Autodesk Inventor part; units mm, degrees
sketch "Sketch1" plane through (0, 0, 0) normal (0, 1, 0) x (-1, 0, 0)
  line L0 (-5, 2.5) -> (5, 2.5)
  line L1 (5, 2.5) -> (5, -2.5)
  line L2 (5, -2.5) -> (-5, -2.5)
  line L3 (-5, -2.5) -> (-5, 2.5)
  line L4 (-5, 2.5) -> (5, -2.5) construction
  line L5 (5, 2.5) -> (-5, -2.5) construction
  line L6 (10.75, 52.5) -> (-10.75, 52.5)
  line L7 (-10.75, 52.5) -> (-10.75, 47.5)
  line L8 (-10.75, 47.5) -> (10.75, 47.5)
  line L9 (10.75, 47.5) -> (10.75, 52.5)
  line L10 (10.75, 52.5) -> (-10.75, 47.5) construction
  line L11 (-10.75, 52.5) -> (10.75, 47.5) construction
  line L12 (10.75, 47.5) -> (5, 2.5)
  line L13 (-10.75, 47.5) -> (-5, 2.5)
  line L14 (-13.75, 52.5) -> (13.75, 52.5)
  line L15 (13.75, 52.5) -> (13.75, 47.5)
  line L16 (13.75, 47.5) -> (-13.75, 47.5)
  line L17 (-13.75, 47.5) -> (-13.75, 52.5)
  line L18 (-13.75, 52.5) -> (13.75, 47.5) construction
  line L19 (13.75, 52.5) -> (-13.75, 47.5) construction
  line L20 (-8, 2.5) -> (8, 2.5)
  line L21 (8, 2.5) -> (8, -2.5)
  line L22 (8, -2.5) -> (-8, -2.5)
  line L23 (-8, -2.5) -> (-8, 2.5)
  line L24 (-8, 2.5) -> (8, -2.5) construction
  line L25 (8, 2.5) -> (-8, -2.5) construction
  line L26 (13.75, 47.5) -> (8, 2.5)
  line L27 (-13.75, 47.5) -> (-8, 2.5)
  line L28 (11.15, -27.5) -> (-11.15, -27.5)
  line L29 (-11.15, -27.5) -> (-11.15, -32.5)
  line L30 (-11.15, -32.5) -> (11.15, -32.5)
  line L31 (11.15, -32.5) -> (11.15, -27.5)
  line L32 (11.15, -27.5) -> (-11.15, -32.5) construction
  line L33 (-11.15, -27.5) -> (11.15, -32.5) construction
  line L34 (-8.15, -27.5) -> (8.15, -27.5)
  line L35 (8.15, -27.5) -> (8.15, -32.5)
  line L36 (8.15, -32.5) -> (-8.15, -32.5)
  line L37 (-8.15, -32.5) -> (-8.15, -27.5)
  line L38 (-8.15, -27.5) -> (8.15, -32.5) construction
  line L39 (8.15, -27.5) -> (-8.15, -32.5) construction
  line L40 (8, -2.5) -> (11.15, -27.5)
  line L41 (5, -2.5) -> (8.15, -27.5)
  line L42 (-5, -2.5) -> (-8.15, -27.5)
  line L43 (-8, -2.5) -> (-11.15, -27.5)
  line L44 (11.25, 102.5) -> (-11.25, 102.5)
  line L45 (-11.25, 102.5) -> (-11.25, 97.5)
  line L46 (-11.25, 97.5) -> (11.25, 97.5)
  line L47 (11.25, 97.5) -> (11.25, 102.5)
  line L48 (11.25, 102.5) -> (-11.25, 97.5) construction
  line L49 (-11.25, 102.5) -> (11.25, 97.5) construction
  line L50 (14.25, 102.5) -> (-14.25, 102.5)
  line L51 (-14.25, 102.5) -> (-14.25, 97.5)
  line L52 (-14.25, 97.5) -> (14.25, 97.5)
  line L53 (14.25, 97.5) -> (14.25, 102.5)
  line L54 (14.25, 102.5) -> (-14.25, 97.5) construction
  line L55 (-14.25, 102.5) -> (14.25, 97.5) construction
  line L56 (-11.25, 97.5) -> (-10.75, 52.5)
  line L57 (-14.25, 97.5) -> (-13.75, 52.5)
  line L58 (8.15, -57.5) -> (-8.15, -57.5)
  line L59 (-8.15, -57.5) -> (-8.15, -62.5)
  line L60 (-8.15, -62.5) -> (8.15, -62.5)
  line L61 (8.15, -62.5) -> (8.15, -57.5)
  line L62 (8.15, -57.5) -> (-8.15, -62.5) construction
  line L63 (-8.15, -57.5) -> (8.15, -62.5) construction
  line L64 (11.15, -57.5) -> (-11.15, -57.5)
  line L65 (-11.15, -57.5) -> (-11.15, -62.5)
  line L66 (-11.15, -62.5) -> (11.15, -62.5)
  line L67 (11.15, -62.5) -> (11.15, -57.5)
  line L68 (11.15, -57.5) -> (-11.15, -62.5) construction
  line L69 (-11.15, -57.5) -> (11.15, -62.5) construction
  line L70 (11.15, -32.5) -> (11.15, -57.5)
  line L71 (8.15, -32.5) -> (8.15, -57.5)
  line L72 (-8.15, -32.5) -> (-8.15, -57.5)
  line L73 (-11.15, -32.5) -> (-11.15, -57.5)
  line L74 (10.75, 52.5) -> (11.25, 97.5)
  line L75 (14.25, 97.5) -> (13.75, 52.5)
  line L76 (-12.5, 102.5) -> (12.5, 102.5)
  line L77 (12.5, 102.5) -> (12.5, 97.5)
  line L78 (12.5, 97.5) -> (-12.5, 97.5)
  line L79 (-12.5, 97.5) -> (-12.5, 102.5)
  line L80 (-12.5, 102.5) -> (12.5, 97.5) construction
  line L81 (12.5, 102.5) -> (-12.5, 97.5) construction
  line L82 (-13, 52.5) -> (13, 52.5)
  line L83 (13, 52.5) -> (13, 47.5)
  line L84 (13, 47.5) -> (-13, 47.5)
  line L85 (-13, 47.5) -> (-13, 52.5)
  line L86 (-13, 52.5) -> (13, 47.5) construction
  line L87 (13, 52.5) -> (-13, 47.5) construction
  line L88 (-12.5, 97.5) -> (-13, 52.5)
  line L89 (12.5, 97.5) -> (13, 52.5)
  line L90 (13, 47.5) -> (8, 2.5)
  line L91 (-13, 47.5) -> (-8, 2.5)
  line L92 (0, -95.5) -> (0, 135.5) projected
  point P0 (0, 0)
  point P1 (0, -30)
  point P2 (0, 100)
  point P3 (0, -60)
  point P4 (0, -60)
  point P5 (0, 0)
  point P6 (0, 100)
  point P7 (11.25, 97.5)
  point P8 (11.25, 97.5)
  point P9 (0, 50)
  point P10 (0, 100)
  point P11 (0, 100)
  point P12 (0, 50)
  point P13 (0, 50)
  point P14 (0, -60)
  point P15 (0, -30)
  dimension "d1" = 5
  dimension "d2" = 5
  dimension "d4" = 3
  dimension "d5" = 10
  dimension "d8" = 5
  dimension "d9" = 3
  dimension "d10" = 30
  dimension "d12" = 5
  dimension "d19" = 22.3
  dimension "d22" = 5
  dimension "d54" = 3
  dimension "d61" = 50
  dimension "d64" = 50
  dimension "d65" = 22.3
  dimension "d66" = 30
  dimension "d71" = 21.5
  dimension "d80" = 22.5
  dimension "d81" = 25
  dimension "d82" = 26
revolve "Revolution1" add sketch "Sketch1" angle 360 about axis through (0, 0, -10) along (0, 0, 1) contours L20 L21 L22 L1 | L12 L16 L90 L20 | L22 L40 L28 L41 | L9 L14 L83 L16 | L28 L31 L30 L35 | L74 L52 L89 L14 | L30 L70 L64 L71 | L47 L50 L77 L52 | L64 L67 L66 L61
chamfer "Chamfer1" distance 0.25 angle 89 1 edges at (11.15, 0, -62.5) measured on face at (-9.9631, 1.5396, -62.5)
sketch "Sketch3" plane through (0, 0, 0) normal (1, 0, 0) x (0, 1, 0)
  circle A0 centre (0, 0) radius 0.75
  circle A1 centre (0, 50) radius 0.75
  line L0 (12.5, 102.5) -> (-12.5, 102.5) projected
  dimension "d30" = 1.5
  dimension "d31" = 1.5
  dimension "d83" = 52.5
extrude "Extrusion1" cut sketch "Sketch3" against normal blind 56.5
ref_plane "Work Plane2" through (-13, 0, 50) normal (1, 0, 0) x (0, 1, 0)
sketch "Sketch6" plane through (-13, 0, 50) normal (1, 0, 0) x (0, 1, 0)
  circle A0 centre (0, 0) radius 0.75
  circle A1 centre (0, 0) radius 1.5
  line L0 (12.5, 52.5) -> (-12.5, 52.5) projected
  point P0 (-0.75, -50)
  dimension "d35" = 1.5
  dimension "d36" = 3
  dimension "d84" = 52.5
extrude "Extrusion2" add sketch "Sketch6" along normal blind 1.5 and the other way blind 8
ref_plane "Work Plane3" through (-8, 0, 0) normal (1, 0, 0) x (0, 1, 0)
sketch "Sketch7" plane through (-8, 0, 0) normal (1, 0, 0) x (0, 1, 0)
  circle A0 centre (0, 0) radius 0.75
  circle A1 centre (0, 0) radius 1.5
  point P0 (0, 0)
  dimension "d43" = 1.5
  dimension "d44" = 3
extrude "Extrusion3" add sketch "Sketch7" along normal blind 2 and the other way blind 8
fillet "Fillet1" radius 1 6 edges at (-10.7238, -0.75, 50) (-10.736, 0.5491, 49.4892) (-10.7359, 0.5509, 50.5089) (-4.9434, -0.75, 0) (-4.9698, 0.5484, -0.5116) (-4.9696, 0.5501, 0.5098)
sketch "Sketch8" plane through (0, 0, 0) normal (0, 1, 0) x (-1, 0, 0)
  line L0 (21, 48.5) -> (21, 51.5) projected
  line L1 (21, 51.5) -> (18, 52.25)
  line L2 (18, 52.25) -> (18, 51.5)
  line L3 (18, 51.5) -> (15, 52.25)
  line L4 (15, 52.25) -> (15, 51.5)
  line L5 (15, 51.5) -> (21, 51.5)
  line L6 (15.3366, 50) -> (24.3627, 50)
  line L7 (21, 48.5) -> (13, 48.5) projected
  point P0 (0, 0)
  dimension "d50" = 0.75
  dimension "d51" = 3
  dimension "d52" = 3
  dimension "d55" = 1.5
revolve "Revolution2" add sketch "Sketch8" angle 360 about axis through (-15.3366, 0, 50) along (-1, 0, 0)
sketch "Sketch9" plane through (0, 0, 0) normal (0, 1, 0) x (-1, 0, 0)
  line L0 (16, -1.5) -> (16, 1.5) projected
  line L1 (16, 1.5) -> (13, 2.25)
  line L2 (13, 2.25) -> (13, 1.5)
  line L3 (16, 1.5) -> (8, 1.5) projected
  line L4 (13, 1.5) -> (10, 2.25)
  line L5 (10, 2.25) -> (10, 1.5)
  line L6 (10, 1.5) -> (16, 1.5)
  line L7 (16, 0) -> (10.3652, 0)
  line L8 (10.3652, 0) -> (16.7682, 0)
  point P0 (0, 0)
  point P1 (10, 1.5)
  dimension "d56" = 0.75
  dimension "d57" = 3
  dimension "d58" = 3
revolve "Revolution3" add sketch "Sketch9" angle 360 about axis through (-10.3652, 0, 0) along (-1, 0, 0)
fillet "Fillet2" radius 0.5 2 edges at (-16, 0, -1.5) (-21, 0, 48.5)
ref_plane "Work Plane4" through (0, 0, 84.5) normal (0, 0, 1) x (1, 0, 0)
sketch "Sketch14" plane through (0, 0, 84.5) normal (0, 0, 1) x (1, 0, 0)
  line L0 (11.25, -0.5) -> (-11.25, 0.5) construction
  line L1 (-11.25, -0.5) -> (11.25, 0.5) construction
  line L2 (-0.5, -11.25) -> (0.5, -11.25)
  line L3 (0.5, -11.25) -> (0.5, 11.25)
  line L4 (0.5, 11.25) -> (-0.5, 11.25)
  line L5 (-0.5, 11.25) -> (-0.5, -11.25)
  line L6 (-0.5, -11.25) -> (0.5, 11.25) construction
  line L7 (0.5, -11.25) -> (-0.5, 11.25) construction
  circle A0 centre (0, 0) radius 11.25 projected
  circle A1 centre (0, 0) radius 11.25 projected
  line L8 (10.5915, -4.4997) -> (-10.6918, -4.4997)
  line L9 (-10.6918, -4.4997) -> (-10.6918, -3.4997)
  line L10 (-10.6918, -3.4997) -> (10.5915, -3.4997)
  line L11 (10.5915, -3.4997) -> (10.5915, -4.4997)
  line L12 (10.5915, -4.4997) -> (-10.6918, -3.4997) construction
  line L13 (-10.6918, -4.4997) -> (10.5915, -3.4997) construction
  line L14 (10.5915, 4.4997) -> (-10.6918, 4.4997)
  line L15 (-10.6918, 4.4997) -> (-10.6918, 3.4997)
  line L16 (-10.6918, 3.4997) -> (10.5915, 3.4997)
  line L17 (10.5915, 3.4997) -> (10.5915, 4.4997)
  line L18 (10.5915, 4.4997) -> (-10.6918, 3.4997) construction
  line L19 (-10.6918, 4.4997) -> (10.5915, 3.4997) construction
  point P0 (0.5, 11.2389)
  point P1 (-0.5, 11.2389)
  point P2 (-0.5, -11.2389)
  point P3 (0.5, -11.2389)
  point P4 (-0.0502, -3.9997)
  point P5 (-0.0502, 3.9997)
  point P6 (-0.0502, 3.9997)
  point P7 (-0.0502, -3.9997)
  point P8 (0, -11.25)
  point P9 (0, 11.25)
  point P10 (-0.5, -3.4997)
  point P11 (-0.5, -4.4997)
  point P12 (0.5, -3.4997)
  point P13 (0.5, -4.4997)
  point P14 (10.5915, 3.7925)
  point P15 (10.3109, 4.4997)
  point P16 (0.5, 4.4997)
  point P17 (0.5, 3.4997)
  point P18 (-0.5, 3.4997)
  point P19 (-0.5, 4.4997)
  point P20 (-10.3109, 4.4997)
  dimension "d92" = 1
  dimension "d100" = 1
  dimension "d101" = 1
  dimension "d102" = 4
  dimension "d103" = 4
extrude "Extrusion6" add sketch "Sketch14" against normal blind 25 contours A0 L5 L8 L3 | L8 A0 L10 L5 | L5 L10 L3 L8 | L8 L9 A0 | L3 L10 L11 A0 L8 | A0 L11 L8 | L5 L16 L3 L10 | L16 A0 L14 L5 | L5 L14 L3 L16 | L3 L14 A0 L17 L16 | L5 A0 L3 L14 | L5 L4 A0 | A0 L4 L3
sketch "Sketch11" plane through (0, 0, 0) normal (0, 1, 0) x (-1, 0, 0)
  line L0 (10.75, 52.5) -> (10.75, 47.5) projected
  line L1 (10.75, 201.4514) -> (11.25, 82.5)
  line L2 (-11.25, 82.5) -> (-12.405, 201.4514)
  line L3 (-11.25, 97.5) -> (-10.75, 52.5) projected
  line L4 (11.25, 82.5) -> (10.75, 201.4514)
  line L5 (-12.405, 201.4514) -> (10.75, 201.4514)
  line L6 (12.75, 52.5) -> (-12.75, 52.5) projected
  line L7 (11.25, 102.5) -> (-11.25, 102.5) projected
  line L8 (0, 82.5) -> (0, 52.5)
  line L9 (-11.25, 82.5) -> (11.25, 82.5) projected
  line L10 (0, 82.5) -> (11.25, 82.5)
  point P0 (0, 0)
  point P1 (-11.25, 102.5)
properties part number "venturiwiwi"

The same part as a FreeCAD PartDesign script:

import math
import FreeCAD as App
import Part
import Sketcher

V = App.Vector
Q = App.Units.Quantity


def edges_at(feature, points):
    """Names of the edges that pass closest to the given points."""
    edges = feature.Shape.Edges
    near = lambda p: min(range(len(edges)), key=lambda i: edges[i].distToShape(Part.Vertex(*p))[0])
    return sorted({f"Edge{near(p) + 1}" for p in points})


def add_polygon(sketch, points):
    """Adds a closed chain of lines whose ends are joined by coincident constraints."""
    first, n = sketch.GeometryCount, len(points)
    for a, b in zip(points, points[1:] + points[:1]):
        sketch.addGeometry(Part.LineSegment(App.Vector(*a, 0), App.Vector(*b, 0)), False)
    for i in range(n):
        sketch.addConstraint(Sketcher.Constraint("Coincident", first + i, 2, first + (i + 1) % n, 1))

doc = App.newDocument("Part")
body = doc.addObject("PartDesign::Body", "Body")

sketch1 = body.newObject("Sketcher::SketchObject", "Sketch")
sketch1.AttachmentSupport = (doc.getObject("XZ_Plane"), [""])
sketch1.MapMode = "FlatFace"
add_polygon(sketch1, [(-8, -2.5), (-8, 2.5), (-13, 47.5), (-13, 52.5), (-12.5, 97.5), (-12.5, 102.5), (-11.25, 102.5), (-11.25, 97.5), (-10.75, 52.5), (-10.75, 47.5), (-5, 2.5), (-5, -2.5), (-8.15, -27.5), (-8.15, -62.5), (-11.15, -62.5), (-11.15, -27.5)])
sketch1.addConstraint([
    Sketcher.Constraint("Vertical", 0),
    Sketcher.Constraint("Vertical", 2),
    Sketcher.Constraint("Vertical", 4),
    Sketcher.Constraint("Horizontal", 5),
    Sketcher.Constraint("Vertical", 6),
    Sketcher.Constraint("Vertical", 8),
    Sketcher.Constraint("Vertical", 10),
    Sketcher.Constraint("Vertical", 12),
    Sketcher.Constraint("Horizontal", 13),
    Sketcher.Constraint("Vertical", 14),
    Sketcher.Constraint("Parallel", 11, 15),
    Sketcher.Constraint("Horizontal", 3, 2, 6, 2),
    Sketcher.Constraint("Horizontal", 2, 2, 7, 2),
    Sketcher.Constraint("Horizontal", 1, 2, 8, 2),
    Sketcher.Constraint("Horizontal", 0, 2, 9, 2),
    Sketcher.Constraint("Horizontal", 11, 2, 14, 2),
    Sketcher.Constraint("Horizontal", 10, 2, 15, 2),
    Sketcher.Constraint("Equal", 0, 2),
    Sketcher.Constraint("Equal", 2, 4),
    Sketcher.Constraint("Equal", 3, 7),
    Sketcher.Constraint("DistanceX", 13, 2, 13, 1, Q("3 mm")),
    Sketcher.Constraint("DistanceY", 0, 1, 0, 2, Q("5 mm")),
    Sketcher.Constraint("DistanceX", 9, 2, -1, 1, Q("5 mm")),
    Sketcher.Constraint("DistanceX", 1, 2, 0, 2, Q("5 mm")),
    Sketcher.Constraint("DistanceY", 0, 2, 2, 2, Q("50 mm")),
    Sketcher.Constraint("DistanceY", 1, 2, 3, 2, Q("50 mm")),
    Sketcher.Constraint("DistanceY", 11, 2, 10, 2, Q("25 mm")),
    Sketcher.Constraint("DistanceY", 12, 2, 12, 1, Q("35 mm")),
    Sketcher.Constraint("DistanceX", 5, 1, 5, 2, Q("1.25 mm")),
    Sketcher.Constraint("DistanceY", -1, 1, 0, 2, Q("2.5 mm")),
    Sketcher.Constraint("DistanceX", 3, 2, -1, 1, Q("12.5 mm")),
    Sketcher.Constraint("DistanceX", 8, 2, 11, 2, Q("2.6 mm")),
])
revolution = body.newObject("PartDesign::Revolution", "Revolution")
revolution.Profile = sketch1
revolution.ReferenceAxis = (sketch1, ["V_Axis"])
revolution.Angle = 360
doc.recompute()

chamfer = body.newObject("PartDesign::Chamfer", "Chamfer")
chamfer.Base = (revolution, edges_at(revolution, [(11.15, 0, -62.5)]))
chamfer.ChamferType = "Distance and Angle"
chamfer.Size = 0.25
chamfer.Angle = 89

sketch2 = body.newObject("Sketcher::SketchObject", "Sketch001")
sketch2.AttachmentSupport = (doc.getObject("YZ_Plane"), [""])
sketch2.MapMode = "FlatFace"
sketch2.addGeometry([
    Part.Circle(V(0, 0, 0), V(0, 0, 1), 0.75),
    Part.Circle(V(0, 50, 0), V(0, 0, 1), 0.75),
], False)
sketch2.addConstraint([
    Sketcher.Constraint("Coincident", 0, 3, -1, 1),
    Sketcher.Constraint("Equal", 0, 1),
    Sketcher.Constraint("PointOnObject", 1, 3, -2),
    Sketcher.Constraint("Diameter", 0, Q("1.5 mm")),
    Sketcher.Constraint("DistanceY", -1, 1, 1, 3, Q("50 mm")),
])
pocket1 = body.newObject("PartDesign::Pocket", "Pocket")
pocket1.Profile = sketch2
pocket1.Length = 56.5

sketch3 = body.newObject("Sketcher::SketchObject", "Sketch002")
sketch3.AttachmentSupport = (doc.getObject("YZ_Plane"), [""])
sketch3.MapMode = "FlatFace"
sketch3.AttachmentOffset = App.Placement(V(0, 0, -13), App.Rotation())
sketch3.addGeometry([
    Part.Circle(V(0, 50, 0), V(0, 0, 1), 1.5),
    Part.Circle(V(0, 50, 0), V(0, 0, 1), 0.75),
], False)
sketch3.addConstraint([
    Sketcher.Constraint("Coincident", 1, 3, 0, 3),
    Sketcher.Constraint("PointOnObject", 0, 3, -2),
    Sketcher.Constraint("Diameter", 0, Q("3 mm")),
    Sketcher.Constraint("Diameter", 1, Q("1.5 mm")),
    Sketcher.Constraint("DistanceY", -1, 1, 0, 3, Q("50 mm")),
])
pad1 = body.newObject("PartDesign::Pad", "Pad")
pad1.Profile = sketch3
pad1.Type = "TwoLengths"
pad1.Length = 1.5
pad1.Length2 = 8

sketch4 = body.newObject("Sketcher::SketchObject", "Sketch003")
sketch4.AttachmentSupport = (doc.getObject("YZ_Plane"), [""])
sketch4.MapMode = "FlatFace"
sketch4.AttachmentOffset = App.Placement(V(0, 0, -8), App.Rotation())
sketch4.addGeometry([
    Part.Circle(V(0, 0, 0), V(0, 0, 1), 1.5),
    Part.Circle(V(0, 0, 0), V(0, 0, 1), 0.75),
], False)
sketch4.addConstraint([
    Sketcher.Constraint("Coincident", 0, 3, -1, 1),
    Sketcher.Constraint("Coincident", 1, 3, -1, 1),
    Sketcher.Constraint("Diameter", 0, Q("3 mm")),
    Sketcher.Constraint("Diameter", 1, Q("1.5 mm")),
])
pad2 = body.newObject("PartDesign::Pad", "Pad001")
pad2.Profile = sketch4
pad2.Type = "TwoLengths"
pad2.Length = 2
pad2.Length2 = 8
doc.recompute()

fillet = body.newObject("PartDesign::Fillet", "Fillet")
fillet.Base = (pad2, edges_at(pad2, [
    (-10.724, -0.75, 50),
    (-10.736, 0.549, 49.489),
    (-10.736, 0.551, 50.509),
    (-4.943, -0.75, 0),
    (-4.97, 0.548, -0.512),
    (-4.97, 0.55, 0.51),
]))
fillet.Radius = 1

sketch5 = body.newObject("Sketcher::SketchObject", "Sketch004")
sketch5.AttachmentSupport = (doc.getObject("XZ_Plane"), [""])
sketch5.MapMode = "FlatFace"
add_polygon(sketch5, [(-18, 51.5), (-21, 51.5), (-18, 52.25)])
add_polygon(sketch5, [(-15, 51.5), (-18, 51.5), (-15, 52.25)])
sketch5.addGeometry(Part.LineSegment(V(-15, 50, 0), V(-21, 50, 0)), True)
sketch5.addConstraint([
    Sketcher.Constraint("Horizontal", 0),
    Sketcher.Constraint("Vertical", 2),
    Sketcher.Constraint("Horizontal", 3),
    Sketcher.Constraint("Vertical", 5),
    Sketcher.Constraint("Horizontal", 6),
    Sketcher.Constraint("Coincident", 3, 2, 2, 2),
    Sketcher.Constraint("Parallel", 1, 4),
    Sketcher.Constraint("Horizontal", 1, 2, 4, 2),
    Sketcher.Constraint("Vertical", 5, 2, 6, 1),
    Sketcher.Constraint("Vertical", 0, 2, 6, 2),
    Sketcher.Constraint("DistanceX", 0, 2, 0, 1, Q("3 mm")),
    Sketcher.Constraint("DistanceY", 2, 2, 2, 1, Q("0.75 mm")),
    Sketcher.Constraint("DistanceY", 6, 1, 5, 2, Q("1.5 mm")),
    Sketcher.Constraint("DistanceX", 0, 2, -1, 1, Q("21 mm")),
    Sketcher.Constraint("DistanceY", -1, 1, 6, 1, Q("50 mm")),
])
revolution2 = body.newObject("PartDesign::Revolution", "Revolution001")
revolution2.Profile = sketch5
revolution2.ReferenceAxis = (sketch5, ["Axis0"])
revolution2.Angle = 360

sketch6 = body.newObject("Sketcher::SketchObject", "Sketch005")
sketch6.AttachmentSupport = (doc.getObject("XZ_Plane"), [""])
sketch6.MapMode = "FlatFace"
add_polygon(sketch6, [(-13, 1.5), (-16, 1.5), (-13, 2.25)])
add_polygon(sketch6, [(-10, 1.5), (-13, 1.5), (-10, 2.25)])
sketch6.addConstraint([
    Sketcher.Constraint("Horizontal", 0),
    Sketcher.Constraint("Vertical", 2),
    Sketcher.Constraint("Horizontal", 3),
    Sketcher.Constraint("Vertical", 5),
    Sketcher.Constraint("Coincident", 3, 2, 2, 2),
    Sketcher.Constraint("Parallel", 1, 4),
    Sketcher.Constraint("Horizontal", 1, 2, 4, 2),
    Sketcher.Constraint("DistanceX", 0, 2, 0, 1, Q("3 mm")),
    Sketcher.Constraint("DistanceY", 2, 2, 2, 1, Q("0.75 mm")),
    Sketcher.Constraint("DistanceX", 0, 2, -1, 1, Q("16 mm")),
    Sketcher.Constraint("DistanceY", -1, 1, 0, 2, Q("1.5 mm")),
])
revolution3 = body.newObject("PartDesign::Revolution", "Revolution002")
revolution3.Profile = sketch6
revolution3.ReferenceAxis = (sketch6, ["H_Axis"])
revolution3.Angle = 360
doc.recompute()

fillet2 = body.newObject("PartDesign::Fillet", "Fillet001")
fillet2.Base = (revolution3, edges_at(revolution3, [(-16, 0, -1.5), (-21, 0, 48.5)]))
fillet2.Radius = 0.5

sketch7 = body.newObject("Sketcher::SketchObject", "Sketch006")
sketch7.AttachmentSupport = (doc.getObject("XY_Plane"), [""])
sketch7.MapMode = "FlatFace"
sketch7.AttachmentOffset = App.Placement(V(0, 0, 84.5), App.Rotation())
sketch7.addGeometry([
    Part.ArcOfCircle(Part.Circle(V(0, 0, 0), V(0, 0, 1), 11.25), math.radians(-92.547318), math.radians(-87.452682)),
    Part.LineSegment(V(0.5, -11.238883, 0), V(0.5, -4.4997, 0)),
    Part.LineSegment(V(0.5, -4.4997, 0), V(10.5915, -4.4997, 0)),
    Part.LineSegment(V(10.5915, -4.4997, 0), V(10.5915, -3.4997, 0)),
    Part.LineSegment(V(10.5915, -3.4997, 0), V(0.5, -3.4997, 0)),
    Part.LineSegment(V(0.5, -3.4997, 0), V(0.5, 3.4997, 0)),
    Part.LineSegment(V(0.5, 3.4997, 0), V(10.5915, 3.4997, 0)),
    Part.LineSegment(V(10.5915, 3.4997, 0), V(10.5915, 3.792444, 0)),
    Part.ArcOfCircle(Part.Circle(V(0, 0, 0), V(0, 0, 1), 11.25), math.radians(19.700659), math.radians(23.576511)),
    Part.LineSegment(V(10.310926, 4.4997, 0), V(0.5, 4.4997, 0)),
    Part.LineSegment(V(0.5, 4.4997, 0), V(0.5, 11.25, 0)),
    Part.LineSegment(V(0.5, 11.25, 0), V(-0.5, 11.25, 0)),
    Part.LineSegment(V(-0.5, 11.25, 0), V(-0.5, 4.4997, 0)),
    Part.LineSegment(V(-0.5, 4.4997, 0), V(-10.310926, 4.4997, 0)),
    Part.ArcOfCircle(Part.Circle(V(0, 0, 0), V(0, 0, 1), 11.25), math.radians(156.423489), math.radians(161.875403)),
    Part.LineSegment(V(-10.6918, 3.4997, 0), V(-0.5, 3.4997, 0)),
    Part.LineSegment(V(-0.5, 3.4997, 0), V(-0.5, -3.4997, 0)),
    Part.LineSegment(V(-0.5, -3.4997, 0), V(-10.6918, -3.4997, 0)),
    Part.LineSegment(V(-10.6918, -3.4997, 0), V(-10.6918, -4.4997, 0)),
    Part.LineSegment(V(-10.6918, -4.4997, 0), V(-0.5, -4.4997, 0)),
    Part.LineSegment(V(-0.5, -4.4997, 0), V(-0.5, -11.238883, 0)),
], False)
sketch7.addConstraint([
    Sketcher.Constraint("Coincident", 0, 2, 1, 1),
    Sketcher.Constraint("Coincident", 1, 2, 2, 1),
    Sketcher.Constraint("Coincident", 2, 2, 3, 1),
    Sketcher.Constraint("Coincident", 3, 2, 4, 1),
    Sketcher.Constraint("Coincident", 4, 2, 5, 1),
    Sketcher.Constraint("Coincident", 5, 2, 6, 1),
    Sketcher.Constraint("Coincident", 6, 2, 7, 1),
    Sketcher.Constraint("Coincident", 7, 2, 8, 1),
    Sketcher.Constraint("Coincident", 8, 2, 9, 1),
    Sketcher.Constraint("Coincident", 9, 2, 10, 1),
    Sketcher.Constraint("Coincident", 10, 2, 11, 1),
    Sketcher.Constraint("Coincident", 11, 2, 12, 1),
    Sketcher.Constraint("Coincident", 12, 2, 13, 1),
    Sketcher.Constraint("Coincident", 13, 2, 14, 1),
    Sketcher.Constraint("Coincident", 14, 2, 15, 1),
    Sketcher.Constraint("Coincident", 15, 2, 16, 1),
    Sketcher.Constraint("Coincident", 16, 2, 17, 1),
    Sketcher.Constraint("Coincident", 17, 2, 18, 1),
    Sketcher.Constraint("Coincident", 18, 2, 19, 1),
    Sketcher.Constraint("Coincident", 19, 2, 20, 1),
    Sketcher.Constraint("Coincident", 20, 2, 0, 1),
    Sketcher.Constraint("Vertical", 1),
    Sketcher.Constraint("Horizontal", 2),
    Sketcher.Constraint("Vertical", 3),
    Sketcher.Constraint("Horizontal", 4),
    Sketcher.Constraint("Vertical", 5),
    Sketcher.Constraint("Horizontal", 6),
    Sketcher.Constraint("Vertical", 7),
    Sketcher.Constraint("Horizontal", 9),
    Sketcher.Constraint("Vertical", 10),
    Sketcher.Constraint("Horizontal", 11),
    Sketcher.Constraint("Vertical", 12),
    Sketcher.Constraint("Horizontal", 13),
    Sketcher.Constraint("Horizontal", 15),
    Sketcher.Constraint("Vertical", 16),
    Sketcher.Constraint("Horizontal", 17),
    Sketcher.Constraint("Vertical", 18),
    Sketcher.Constraint("Horizontal", 19),
    Sketcher.Constraint("Vertical", 20),
    Sketcher.Constraint("Coincident", 0, 3, -1, 1),
    Sketcher.Constraint("Coincident", 8, 3, -1, 1),
    Sketcher.Constraint("Coincident", 14, 3, -1, 1),
    Sketcher.Constraint("Equal", 0, 8),
    Sketcher.Constraint("Equal", 8, 14),
    Sketcher.Constraint("Symmetric", 1, 2, 12, 2, -1, 1),
    Sketcher.Constraint("Symmetric", 4, 2, 15, 2, -1, 1),
    Sketcher.Constraint("Symmetric", 9, 2, 19, 2, -1, 1),
    Sketcher.Constraint("Symmetric", 9, 2, 12, 2, -2),
    Sketcher.Constraint("Symmetric", 3, 2, 6, 2, -1),
    Sketcher.Constraint("Symmetric", 14, 2, 17, 2, -1),
    Sketcher.Constraint("Vertical", 1, 2, 4, 2),
    Sketcher.Constraint("Equal", 11, 3),
    Sketcher.Constraint("DistanceX", 11, 2, 11, 1, Q("1 mm")),
    Sketcher.Constraint("Radius", 0, Q("11.25 mm")),
    Sketcher.Constraint("DistanceX", 9, 2, 9, 1, Q("9.811 mm")),
    Sketcher.Constraint("DistanceY", -1, 1, 10, 2, Q("11.25 mm")),
    Sketcher.Constraint("DistanceX", 2, 1, 2, 2, Q("10.0915 mm")),
])
pad3 = body.newObject("PartDesign::Pad", "Pad002")
pad3.Profile = sketch7
pad3.Length = 25
pad3.Reversed = True

doc.recompute()
